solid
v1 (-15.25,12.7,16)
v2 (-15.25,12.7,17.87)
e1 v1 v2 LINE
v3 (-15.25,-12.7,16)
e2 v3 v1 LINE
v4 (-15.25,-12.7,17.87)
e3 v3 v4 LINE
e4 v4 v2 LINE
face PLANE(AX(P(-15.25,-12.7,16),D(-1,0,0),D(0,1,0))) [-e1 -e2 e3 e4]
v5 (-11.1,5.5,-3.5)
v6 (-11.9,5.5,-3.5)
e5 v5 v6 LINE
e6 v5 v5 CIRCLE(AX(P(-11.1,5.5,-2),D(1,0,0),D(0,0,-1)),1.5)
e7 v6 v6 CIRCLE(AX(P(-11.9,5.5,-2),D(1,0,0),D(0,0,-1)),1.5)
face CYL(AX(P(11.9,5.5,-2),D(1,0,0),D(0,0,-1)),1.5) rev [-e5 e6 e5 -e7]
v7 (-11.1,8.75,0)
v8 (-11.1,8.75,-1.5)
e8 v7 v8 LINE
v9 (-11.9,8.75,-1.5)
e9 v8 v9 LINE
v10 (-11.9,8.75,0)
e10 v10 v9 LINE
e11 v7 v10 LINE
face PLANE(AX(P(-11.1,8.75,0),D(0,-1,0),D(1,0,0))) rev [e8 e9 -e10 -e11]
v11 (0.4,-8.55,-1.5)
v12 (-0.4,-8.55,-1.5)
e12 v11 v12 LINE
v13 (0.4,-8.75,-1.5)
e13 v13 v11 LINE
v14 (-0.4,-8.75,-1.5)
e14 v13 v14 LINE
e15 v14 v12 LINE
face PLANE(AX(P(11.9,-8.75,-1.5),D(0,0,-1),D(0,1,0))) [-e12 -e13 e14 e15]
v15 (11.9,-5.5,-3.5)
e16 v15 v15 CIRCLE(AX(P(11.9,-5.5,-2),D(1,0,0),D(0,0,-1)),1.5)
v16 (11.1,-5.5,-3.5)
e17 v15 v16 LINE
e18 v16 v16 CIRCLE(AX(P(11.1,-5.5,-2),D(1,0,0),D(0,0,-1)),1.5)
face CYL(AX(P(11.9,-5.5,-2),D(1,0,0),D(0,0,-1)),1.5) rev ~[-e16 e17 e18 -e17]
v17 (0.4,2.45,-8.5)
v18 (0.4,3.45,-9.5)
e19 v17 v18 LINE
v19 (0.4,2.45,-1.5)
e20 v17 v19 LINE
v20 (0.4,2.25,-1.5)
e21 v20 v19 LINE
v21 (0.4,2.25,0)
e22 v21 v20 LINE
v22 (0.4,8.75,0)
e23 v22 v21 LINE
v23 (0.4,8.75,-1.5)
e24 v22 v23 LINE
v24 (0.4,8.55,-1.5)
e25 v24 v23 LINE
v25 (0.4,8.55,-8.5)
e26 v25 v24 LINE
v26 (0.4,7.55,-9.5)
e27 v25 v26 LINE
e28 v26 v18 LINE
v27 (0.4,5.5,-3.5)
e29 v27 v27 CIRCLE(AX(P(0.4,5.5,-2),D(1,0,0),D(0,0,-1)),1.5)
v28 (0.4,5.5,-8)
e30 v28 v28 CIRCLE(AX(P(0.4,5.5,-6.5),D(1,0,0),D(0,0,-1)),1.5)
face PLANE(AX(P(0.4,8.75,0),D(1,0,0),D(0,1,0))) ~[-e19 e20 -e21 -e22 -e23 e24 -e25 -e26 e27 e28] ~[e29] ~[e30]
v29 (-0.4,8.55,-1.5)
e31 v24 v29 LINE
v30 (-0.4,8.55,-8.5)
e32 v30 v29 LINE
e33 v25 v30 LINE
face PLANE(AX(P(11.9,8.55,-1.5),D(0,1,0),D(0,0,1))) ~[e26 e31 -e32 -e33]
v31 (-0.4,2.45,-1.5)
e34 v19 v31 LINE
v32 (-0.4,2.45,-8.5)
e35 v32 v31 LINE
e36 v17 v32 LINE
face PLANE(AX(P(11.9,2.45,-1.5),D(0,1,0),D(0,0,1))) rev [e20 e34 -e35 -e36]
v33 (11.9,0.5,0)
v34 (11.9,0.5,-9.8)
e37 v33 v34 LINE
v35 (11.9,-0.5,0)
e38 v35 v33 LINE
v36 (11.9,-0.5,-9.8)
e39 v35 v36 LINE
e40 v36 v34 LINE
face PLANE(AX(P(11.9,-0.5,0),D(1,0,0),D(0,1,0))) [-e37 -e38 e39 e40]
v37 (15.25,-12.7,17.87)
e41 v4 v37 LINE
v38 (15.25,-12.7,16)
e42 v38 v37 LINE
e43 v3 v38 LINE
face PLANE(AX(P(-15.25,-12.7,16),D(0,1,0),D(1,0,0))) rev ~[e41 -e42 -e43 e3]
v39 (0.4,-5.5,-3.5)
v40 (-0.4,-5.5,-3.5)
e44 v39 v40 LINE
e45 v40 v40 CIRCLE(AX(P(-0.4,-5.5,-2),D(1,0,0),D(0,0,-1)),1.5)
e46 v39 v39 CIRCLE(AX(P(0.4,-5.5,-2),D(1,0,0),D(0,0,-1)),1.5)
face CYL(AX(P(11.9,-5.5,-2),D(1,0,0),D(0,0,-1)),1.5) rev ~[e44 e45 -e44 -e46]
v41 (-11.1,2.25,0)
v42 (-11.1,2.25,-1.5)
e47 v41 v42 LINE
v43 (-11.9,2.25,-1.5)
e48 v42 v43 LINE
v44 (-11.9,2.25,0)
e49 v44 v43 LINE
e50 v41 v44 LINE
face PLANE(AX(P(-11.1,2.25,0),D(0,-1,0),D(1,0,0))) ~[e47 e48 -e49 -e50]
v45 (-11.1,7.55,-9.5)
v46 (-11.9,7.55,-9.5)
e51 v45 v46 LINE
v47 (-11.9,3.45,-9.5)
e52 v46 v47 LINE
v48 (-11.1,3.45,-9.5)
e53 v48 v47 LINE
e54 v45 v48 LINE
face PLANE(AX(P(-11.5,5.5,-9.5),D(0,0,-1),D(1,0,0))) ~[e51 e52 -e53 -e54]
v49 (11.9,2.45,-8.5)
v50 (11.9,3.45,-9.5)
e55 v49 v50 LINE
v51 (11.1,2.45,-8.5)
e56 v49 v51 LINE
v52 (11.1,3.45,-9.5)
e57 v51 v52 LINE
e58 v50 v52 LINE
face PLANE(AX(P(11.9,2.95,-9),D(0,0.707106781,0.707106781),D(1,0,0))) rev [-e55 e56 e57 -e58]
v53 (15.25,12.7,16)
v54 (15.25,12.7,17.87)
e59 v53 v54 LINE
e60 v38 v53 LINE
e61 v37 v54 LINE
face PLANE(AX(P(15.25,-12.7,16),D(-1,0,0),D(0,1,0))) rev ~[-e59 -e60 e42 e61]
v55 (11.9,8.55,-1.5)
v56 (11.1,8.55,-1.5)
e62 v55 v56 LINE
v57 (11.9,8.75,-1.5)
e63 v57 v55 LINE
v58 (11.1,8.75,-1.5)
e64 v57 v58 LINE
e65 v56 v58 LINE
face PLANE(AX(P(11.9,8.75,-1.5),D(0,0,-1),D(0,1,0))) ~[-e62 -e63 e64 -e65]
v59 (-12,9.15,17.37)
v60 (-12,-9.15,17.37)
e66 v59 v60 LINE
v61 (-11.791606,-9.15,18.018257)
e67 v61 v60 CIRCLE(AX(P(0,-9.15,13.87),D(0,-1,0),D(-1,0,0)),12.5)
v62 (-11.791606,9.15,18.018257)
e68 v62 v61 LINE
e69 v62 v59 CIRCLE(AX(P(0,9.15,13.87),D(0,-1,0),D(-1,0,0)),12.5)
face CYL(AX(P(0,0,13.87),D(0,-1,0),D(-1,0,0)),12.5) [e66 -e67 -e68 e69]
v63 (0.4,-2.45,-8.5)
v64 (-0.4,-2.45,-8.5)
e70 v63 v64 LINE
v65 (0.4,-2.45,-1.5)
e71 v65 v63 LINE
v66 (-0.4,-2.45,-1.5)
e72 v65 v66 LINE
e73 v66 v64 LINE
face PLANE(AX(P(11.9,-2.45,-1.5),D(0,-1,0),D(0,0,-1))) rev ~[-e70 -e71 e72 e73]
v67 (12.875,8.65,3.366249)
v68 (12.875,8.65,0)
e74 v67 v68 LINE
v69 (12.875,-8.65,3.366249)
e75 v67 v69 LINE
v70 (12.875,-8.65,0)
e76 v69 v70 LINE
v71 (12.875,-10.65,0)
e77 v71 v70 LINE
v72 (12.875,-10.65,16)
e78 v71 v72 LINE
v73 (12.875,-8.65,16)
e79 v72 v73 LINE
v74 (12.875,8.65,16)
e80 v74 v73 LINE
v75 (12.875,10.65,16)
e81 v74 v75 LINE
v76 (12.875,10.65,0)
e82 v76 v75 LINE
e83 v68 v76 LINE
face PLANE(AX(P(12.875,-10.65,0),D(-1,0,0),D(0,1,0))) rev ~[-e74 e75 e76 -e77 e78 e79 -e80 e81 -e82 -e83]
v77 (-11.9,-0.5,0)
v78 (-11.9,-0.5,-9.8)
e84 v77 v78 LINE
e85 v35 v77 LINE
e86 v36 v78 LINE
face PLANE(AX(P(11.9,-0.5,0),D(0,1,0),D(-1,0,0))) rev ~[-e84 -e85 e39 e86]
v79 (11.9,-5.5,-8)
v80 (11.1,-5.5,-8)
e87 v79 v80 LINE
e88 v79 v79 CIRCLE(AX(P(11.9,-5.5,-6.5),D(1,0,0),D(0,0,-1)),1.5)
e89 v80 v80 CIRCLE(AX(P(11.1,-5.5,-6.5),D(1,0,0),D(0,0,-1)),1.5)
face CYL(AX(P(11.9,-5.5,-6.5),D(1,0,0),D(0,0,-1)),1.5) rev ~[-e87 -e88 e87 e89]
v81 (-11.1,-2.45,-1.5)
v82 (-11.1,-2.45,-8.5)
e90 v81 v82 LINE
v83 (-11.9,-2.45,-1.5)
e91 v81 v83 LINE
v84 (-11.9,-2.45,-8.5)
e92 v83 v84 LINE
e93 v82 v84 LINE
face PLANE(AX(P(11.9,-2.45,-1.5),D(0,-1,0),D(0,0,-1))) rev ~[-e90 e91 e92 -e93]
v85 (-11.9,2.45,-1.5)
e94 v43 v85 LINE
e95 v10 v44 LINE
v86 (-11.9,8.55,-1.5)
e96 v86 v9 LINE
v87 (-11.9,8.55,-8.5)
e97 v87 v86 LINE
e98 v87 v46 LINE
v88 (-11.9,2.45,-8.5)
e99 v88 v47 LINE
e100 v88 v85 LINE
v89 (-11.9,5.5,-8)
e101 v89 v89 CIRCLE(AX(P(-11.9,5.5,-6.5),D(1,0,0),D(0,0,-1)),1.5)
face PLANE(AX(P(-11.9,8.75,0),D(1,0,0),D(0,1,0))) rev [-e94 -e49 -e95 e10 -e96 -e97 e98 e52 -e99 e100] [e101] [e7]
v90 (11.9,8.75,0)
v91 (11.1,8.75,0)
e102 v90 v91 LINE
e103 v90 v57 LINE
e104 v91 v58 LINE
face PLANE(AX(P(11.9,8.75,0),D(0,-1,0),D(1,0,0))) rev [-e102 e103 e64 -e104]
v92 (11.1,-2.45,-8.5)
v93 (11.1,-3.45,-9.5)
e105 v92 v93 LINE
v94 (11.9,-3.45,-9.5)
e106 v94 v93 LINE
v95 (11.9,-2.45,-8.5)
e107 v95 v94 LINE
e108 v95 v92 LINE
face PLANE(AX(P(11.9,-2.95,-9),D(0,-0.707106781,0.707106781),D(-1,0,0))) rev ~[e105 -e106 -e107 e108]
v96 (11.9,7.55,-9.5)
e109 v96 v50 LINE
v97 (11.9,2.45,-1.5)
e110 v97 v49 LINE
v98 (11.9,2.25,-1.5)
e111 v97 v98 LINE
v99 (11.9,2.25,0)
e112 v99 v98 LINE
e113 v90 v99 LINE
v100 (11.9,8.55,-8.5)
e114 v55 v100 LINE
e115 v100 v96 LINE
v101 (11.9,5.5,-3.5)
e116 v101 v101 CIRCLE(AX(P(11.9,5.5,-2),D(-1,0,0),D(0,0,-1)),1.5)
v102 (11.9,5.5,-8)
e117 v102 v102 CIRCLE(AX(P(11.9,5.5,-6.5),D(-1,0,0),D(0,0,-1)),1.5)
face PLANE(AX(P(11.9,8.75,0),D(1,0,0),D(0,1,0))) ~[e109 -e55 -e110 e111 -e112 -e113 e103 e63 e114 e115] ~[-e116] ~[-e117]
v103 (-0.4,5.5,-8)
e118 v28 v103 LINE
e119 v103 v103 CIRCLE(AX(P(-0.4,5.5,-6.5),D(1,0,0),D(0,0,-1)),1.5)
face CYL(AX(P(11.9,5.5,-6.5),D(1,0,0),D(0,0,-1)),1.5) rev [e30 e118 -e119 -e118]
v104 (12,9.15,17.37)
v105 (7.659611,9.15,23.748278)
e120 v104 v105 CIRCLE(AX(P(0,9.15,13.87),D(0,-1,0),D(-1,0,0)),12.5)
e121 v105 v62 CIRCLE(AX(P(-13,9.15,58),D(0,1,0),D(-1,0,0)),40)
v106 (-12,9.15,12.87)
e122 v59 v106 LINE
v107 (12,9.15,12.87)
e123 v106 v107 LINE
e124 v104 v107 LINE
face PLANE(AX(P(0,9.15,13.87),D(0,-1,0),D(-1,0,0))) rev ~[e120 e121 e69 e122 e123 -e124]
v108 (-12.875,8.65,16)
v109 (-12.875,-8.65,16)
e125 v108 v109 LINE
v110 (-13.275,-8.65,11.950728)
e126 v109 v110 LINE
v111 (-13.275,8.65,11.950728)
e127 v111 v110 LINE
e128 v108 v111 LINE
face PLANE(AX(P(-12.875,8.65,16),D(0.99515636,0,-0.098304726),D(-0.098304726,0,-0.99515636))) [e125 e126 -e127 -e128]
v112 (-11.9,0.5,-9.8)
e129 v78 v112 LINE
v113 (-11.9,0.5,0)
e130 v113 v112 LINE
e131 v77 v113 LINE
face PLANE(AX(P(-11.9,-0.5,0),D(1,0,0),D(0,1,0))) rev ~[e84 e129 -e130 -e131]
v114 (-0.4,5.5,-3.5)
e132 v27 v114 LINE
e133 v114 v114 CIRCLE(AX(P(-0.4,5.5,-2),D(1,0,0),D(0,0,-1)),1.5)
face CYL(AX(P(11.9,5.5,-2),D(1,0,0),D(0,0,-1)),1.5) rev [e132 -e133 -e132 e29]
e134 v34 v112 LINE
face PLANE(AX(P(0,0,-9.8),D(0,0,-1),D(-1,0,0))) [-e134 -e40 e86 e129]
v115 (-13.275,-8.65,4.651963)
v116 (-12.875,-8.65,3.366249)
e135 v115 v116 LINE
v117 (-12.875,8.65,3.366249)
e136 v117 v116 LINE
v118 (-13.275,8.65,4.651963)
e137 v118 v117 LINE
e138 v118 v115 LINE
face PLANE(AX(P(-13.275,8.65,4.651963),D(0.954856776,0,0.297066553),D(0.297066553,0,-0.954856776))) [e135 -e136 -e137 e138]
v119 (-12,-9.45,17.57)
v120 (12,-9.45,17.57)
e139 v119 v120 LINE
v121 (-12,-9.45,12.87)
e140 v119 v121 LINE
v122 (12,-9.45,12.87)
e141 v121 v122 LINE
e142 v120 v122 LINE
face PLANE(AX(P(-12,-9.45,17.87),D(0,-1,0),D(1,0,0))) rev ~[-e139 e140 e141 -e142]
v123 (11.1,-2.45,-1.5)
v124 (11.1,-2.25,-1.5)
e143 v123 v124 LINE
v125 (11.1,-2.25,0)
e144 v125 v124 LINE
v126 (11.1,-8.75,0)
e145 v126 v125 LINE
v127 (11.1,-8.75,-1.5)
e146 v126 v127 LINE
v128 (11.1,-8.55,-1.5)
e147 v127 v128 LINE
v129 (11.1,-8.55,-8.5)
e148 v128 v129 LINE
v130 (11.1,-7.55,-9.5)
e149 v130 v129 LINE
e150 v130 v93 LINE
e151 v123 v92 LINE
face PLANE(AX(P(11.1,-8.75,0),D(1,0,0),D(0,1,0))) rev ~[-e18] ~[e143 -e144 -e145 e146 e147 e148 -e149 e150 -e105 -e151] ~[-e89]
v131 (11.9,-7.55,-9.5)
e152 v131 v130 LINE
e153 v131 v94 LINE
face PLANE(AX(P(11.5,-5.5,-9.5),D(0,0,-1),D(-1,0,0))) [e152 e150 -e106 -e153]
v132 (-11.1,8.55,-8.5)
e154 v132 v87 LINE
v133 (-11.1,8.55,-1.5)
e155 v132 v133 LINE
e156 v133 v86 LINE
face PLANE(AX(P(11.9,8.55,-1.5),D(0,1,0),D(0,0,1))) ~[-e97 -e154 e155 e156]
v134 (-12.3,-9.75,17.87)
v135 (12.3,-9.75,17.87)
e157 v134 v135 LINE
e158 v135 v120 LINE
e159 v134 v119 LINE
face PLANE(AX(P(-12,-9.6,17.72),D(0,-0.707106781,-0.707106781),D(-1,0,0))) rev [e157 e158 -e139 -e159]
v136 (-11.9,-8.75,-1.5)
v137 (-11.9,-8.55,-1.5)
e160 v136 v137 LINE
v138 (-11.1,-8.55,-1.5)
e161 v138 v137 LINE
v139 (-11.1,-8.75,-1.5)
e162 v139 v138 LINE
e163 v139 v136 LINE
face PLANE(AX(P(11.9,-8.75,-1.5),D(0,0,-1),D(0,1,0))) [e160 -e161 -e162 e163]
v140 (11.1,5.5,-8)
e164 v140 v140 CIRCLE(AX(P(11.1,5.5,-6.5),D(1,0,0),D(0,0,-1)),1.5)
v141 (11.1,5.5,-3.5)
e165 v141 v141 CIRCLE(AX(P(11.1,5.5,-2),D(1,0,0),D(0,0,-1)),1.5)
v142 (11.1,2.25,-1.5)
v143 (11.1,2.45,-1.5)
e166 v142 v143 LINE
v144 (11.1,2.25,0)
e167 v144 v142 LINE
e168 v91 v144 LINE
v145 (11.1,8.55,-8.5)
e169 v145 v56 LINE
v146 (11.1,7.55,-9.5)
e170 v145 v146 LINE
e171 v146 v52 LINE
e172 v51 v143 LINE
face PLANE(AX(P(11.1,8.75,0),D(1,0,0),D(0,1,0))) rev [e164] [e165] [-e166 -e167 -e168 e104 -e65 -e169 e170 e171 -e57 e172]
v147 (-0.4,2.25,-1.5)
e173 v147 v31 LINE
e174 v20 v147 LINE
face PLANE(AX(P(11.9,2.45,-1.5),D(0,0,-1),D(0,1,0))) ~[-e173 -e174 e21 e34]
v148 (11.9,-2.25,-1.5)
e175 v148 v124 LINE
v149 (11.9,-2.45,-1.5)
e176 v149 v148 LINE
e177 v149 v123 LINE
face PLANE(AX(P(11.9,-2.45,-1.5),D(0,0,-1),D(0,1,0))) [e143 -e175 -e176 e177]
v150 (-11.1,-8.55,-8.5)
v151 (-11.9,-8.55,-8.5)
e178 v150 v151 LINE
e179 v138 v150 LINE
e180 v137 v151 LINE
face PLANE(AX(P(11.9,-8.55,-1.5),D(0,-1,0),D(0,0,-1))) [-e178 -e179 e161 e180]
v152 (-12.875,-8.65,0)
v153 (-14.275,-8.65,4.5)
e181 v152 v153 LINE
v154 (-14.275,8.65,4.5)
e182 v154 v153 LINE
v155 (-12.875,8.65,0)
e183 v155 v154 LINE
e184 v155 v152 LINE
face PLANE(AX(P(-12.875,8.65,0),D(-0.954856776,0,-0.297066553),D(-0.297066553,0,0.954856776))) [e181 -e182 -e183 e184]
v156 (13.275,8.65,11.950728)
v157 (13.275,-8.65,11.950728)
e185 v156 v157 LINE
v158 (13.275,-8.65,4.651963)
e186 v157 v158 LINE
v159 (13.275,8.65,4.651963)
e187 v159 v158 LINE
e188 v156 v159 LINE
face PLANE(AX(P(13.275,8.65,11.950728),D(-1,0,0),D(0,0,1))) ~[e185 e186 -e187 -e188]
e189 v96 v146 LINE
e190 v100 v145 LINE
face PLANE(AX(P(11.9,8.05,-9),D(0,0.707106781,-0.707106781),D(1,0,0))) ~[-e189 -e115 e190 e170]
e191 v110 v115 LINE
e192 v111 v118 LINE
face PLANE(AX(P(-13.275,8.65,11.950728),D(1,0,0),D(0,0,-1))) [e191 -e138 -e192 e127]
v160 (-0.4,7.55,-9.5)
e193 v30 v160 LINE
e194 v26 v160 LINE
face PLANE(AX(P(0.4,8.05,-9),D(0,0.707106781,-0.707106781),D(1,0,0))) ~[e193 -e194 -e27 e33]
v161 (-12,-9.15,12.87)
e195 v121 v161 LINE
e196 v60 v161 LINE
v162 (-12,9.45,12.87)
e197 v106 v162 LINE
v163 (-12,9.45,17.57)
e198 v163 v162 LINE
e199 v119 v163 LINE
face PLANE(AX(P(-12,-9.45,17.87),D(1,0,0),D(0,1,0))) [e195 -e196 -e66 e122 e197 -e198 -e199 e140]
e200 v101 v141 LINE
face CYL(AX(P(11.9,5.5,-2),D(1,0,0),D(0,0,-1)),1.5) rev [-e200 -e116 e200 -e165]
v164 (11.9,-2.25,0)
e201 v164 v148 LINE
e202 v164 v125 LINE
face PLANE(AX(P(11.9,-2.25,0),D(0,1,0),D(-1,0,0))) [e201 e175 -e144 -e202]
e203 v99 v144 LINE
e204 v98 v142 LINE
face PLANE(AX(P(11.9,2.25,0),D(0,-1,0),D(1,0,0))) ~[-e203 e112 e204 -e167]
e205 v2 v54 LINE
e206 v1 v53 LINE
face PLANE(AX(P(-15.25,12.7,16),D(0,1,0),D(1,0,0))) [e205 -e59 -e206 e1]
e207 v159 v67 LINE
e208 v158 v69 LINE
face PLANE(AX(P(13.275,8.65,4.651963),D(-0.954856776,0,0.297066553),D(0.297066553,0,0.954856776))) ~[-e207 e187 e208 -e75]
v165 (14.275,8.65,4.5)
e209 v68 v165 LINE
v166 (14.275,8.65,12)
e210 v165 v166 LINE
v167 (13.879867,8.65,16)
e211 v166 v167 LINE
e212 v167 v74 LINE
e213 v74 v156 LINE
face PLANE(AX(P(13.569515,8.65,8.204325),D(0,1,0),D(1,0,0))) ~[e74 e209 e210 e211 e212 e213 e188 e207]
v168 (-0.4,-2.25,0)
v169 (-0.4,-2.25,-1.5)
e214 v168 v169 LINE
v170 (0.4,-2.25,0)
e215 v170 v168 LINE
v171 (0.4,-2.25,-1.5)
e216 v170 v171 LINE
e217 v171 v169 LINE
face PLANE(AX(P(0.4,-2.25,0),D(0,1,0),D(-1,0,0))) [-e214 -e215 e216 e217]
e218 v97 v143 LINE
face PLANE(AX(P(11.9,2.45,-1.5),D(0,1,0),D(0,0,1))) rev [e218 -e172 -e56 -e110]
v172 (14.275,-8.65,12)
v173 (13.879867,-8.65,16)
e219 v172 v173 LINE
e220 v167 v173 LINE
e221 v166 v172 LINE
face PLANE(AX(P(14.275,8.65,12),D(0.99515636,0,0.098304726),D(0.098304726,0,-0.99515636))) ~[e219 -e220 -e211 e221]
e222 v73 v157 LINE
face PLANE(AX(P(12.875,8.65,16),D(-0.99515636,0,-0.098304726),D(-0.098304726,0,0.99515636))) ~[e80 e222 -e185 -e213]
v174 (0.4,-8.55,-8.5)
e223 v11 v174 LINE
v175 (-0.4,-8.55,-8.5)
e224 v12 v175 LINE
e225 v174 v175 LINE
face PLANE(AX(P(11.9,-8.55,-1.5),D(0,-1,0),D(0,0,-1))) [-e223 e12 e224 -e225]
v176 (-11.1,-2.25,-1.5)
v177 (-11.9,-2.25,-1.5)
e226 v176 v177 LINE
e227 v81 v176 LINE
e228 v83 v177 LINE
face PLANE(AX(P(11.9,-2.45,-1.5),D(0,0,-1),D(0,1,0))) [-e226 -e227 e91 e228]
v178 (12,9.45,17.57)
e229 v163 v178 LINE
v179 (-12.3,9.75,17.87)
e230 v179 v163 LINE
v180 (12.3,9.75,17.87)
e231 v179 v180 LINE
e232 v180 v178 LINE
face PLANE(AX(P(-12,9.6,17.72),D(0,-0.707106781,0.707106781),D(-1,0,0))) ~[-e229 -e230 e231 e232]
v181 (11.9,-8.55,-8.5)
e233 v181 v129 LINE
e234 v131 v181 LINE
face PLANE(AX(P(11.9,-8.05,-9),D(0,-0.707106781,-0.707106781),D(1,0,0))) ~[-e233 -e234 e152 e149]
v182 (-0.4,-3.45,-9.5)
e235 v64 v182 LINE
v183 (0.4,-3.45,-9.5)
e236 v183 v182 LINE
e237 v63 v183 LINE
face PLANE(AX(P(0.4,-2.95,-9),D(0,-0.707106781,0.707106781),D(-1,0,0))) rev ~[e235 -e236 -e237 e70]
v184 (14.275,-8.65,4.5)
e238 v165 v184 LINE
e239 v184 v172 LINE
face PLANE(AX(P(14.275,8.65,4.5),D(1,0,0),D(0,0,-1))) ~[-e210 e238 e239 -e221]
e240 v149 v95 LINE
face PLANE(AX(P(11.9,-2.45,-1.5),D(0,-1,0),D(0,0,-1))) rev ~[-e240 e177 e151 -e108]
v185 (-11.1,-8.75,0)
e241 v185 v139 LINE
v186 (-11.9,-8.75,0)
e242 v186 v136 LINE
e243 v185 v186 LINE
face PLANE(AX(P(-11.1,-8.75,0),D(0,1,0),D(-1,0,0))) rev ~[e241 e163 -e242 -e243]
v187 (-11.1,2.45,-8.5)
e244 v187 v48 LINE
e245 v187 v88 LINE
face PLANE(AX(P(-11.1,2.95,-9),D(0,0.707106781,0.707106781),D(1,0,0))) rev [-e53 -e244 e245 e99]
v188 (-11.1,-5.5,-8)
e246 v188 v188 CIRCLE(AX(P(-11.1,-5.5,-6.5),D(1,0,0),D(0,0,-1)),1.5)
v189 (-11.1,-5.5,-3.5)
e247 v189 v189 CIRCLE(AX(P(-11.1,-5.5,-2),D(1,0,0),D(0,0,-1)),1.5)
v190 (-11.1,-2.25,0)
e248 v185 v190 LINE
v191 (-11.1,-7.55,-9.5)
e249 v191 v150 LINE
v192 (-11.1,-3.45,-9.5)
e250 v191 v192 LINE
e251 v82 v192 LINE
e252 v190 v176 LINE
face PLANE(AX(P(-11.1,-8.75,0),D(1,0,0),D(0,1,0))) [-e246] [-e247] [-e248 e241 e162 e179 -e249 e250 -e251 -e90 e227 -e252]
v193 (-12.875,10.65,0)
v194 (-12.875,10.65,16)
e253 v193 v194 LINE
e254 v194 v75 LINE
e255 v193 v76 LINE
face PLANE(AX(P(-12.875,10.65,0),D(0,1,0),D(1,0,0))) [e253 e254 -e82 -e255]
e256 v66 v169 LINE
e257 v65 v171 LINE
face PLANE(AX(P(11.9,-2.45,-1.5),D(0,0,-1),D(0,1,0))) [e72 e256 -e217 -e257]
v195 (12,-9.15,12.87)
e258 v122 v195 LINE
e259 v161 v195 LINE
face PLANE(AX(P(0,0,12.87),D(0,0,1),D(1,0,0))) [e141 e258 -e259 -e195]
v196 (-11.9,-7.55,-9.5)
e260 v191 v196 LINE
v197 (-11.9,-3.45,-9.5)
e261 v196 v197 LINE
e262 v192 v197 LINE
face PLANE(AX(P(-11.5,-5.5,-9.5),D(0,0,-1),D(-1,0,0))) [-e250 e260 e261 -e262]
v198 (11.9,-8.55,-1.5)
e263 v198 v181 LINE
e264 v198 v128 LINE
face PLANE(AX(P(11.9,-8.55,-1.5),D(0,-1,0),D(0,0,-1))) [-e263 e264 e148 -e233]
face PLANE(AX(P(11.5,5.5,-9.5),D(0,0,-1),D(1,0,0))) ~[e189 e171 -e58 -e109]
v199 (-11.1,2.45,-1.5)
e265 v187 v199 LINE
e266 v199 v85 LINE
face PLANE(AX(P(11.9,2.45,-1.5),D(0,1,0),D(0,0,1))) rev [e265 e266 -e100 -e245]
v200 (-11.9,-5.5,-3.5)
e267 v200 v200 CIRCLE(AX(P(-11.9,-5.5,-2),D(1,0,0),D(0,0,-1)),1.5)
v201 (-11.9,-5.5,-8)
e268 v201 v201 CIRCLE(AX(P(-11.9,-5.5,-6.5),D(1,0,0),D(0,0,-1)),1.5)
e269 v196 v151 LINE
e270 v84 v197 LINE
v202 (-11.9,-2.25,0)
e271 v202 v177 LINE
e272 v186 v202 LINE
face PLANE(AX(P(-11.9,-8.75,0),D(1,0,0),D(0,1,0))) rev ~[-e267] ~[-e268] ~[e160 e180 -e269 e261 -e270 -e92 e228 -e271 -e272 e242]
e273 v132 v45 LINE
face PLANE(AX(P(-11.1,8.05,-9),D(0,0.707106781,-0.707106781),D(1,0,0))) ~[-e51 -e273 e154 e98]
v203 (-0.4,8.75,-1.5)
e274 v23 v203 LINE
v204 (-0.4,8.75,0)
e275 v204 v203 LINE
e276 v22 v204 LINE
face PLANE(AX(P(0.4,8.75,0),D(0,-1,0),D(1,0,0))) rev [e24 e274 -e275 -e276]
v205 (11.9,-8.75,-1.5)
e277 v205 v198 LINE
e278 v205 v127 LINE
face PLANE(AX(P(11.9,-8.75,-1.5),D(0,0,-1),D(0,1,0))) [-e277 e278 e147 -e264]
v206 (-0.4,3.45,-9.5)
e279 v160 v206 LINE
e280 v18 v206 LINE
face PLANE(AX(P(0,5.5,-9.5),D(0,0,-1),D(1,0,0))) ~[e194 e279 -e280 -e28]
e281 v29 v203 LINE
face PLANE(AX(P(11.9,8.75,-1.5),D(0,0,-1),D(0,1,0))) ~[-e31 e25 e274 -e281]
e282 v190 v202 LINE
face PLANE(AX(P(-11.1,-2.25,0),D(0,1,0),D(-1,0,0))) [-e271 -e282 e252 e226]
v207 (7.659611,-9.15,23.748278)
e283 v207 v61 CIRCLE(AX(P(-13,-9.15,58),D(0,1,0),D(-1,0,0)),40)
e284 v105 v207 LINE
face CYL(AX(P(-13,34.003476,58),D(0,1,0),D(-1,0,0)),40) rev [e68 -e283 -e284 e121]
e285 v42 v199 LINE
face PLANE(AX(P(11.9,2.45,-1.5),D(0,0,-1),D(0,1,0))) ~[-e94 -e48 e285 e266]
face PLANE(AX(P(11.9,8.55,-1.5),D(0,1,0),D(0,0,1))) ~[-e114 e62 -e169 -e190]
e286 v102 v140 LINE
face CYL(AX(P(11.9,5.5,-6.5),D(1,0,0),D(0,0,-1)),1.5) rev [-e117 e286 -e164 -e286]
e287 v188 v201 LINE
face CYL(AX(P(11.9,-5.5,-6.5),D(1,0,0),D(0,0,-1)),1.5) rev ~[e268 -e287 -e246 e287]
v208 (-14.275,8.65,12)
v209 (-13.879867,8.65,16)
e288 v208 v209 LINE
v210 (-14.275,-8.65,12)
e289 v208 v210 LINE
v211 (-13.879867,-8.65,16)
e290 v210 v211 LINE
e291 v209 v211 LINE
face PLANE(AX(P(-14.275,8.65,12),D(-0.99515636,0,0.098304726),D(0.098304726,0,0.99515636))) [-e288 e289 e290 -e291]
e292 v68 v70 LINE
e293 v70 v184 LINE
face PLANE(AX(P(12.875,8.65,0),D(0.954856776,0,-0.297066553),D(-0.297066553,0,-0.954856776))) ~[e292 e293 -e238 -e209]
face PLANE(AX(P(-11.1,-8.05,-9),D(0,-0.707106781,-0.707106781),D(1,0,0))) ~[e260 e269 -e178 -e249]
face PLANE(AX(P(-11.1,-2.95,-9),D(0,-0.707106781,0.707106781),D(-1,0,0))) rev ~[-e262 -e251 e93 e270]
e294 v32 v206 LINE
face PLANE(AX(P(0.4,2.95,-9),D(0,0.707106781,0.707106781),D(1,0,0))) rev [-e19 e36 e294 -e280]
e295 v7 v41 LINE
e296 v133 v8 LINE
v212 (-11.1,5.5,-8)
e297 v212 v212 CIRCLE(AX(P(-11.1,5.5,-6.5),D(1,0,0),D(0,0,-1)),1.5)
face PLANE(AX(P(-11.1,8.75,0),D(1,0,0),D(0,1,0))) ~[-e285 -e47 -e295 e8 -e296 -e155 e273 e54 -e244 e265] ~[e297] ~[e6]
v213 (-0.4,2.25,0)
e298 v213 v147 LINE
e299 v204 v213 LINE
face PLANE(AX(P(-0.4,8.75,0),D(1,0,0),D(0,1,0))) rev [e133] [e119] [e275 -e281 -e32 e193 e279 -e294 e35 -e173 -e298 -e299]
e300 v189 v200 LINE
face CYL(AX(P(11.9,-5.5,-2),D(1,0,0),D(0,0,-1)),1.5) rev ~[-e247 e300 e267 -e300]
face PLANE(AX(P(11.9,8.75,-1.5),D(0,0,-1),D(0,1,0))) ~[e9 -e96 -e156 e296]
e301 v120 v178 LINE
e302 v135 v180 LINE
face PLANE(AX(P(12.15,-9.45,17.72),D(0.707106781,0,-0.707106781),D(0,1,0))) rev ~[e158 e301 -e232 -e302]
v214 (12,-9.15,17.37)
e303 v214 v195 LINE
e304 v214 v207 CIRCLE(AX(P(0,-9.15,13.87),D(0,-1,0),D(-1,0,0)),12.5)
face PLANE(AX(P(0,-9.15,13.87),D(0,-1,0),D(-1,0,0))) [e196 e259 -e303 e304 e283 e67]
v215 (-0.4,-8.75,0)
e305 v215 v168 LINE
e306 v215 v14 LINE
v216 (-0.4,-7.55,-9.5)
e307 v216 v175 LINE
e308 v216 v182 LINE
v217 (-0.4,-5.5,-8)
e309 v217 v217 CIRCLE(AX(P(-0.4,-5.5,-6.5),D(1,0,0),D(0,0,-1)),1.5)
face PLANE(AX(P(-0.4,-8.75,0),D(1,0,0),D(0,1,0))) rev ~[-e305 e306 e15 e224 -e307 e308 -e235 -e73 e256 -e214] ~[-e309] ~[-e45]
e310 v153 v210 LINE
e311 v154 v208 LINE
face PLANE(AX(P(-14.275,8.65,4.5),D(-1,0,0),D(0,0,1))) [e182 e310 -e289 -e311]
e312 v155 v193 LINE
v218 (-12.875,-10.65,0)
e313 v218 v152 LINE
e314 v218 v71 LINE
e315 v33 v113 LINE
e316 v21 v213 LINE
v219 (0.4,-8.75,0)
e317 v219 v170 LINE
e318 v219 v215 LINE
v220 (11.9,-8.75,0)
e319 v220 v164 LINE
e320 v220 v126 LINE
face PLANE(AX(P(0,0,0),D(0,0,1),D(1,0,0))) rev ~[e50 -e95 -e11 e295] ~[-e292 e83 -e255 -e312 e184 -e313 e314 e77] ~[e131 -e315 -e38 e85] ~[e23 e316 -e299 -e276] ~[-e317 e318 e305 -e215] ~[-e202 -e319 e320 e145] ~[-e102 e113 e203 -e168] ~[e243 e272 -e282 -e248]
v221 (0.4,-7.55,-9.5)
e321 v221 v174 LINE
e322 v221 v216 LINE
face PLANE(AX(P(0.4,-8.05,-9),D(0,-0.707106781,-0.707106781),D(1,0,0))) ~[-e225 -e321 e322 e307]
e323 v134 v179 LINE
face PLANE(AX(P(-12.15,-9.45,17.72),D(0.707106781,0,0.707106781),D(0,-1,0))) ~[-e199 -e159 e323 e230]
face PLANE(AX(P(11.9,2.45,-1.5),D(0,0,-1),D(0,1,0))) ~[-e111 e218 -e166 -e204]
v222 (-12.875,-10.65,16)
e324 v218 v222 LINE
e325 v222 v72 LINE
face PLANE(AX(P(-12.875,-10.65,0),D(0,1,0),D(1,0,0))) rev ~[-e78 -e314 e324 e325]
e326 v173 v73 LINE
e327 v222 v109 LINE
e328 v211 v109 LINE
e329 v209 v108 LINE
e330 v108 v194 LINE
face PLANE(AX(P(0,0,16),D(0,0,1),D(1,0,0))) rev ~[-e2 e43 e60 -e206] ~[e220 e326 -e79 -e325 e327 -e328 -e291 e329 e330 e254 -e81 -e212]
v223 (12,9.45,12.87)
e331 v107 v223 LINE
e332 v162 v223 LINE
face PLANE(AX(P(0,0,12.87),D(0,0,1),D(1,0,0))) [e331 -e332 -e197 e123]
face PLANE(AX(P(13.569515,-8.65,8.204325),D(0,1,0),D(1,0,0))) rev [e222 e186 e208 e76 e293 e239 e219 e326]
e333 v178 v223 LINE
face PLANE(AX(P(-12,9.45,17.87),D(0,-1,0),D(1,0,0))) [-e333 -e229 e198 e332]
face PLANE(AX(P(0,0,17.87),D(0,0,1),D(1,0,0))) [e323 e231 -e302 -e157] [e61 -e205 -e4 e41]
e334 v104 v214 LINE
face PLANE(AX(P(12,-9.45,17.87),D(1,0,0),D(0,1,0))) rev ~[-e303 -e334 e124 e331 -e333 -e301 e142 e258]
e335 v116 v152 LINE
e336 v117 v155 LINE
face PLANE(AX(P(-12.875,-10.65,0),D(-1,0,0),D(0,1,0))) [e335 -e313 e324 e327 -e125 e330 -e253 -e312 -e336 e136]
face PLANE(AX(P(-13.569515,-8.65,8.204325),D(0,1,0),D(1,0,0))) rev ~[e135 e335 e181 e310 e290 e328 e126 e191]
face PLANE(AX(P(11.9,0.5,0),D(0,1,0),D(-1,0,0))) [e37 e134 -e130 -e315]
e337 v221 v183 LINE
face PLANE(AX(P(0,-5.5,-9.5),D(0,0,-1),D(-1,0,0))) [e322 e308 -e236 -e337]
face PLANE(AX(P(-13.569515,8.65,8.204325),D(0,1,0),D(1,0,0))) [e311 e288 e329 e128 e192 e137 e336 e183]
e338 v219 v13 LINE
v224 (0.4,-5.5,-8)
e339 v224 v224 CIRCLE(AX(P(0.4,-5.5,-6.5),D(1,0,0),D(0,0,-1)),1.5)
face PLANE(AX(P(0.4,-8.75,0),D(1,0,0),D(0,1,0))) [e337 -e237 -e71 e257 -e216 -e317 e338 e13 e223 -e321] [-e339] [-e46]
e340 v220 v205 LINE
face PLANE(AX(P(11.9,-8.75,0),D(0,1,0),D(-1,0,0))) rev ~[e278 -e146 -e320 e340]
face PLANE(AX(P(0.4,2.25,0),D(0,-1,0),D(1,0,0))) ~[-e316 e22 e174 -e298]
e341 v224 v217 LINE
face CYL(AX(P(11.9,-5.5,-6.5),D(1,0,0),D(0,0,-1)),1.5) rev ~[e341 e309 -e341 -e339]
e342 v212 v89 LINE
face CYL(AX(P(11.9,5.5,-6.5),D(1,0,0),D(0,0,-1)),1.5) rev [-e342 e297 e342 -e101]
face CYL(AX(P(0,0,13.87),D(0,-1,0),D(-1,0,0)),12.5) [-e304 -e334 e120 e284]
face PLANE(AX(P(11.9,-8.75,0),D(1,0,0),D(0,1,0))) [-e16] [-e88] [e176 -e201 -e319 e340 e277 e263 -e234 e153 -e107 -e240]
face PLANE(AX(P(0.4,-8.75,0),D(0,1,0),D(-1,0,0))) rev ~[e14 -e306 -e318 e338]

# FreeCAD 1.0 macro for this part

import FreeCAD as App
import Part
import Sketcher


def edges_at(feature, points):
    """Names of the edges that pass closest to the given points."""
    edges = feature.Shape.Edges
    near = lambda p: min(range(len(edges)), key=lambda i: edges[i].distToShape(Part.Vertex(*p))[0])
    return sorted({f"Edge{near(p) + 1}" for p in points})

doc = App.newDocument("Part")
params = doc.addObject("Spreadsheet::Sheet", "Params")
for row, (alias, value) in enumerate([
    ("sketch1_height", "21.3 mm"),
    ("sketch1_width", "25.75 mm"),
    ("pad1_length", "16 mm"),
    ("sketch2_width", "30.5 mm"),
    ("sketch2_height", "25.4 mm"),
    ("pad2_length", "1.87 mm"),
    ("sketch3_height", "1 mm"),
    ("sketch3_width", "23.8 mm"),
    ("pad3_length", "9.8 mm"),
    ("sketch4_width", "0.8 mm"),
    ("sketch4_height", "6.5 mm"),
    ("pad4_length", "9.5 mm"),
    ("sketch5_height", "8 mm"),
    ("sketch5_width", "0.2 mm"),
    ("chamfer_size", "1 mm"),
    ("sketch6_diameter", "3 mm"),
    ("chamfer2_size", "1 mm"),
    ("sketch7_height", "7.5 mm"),
    ("pad5_length", "17.3 mm"),
    ("sketch8_width", "24 mm"),
    ("sketch8_height", "18.9 mm"),
    ("pocket3_length", "5 mm"),
    ("sketch9_diameter", "25 mm"),
    ("pad6_length", "18.3 mm"),
    ("sketch10_diameter", "80 mm"),
    ("chamfer3_size", "0.3 mm"),
], start=1):
    params.set(f"A{row}", alias)
    params.set(f"B{row}", "=" + value)
    params.setAlias(f"B{row}", alias)

body = doc.addObject("PartDesign::Body", "Body")

# Sketch on XY plane
sketch1 = body.newObject("Sketcher::SketchObject", "Sketch")
sketch1.AttachmentSupport = (doc.getObject("XY_Plane"), [""])
sketch1.MapMode = "FlatFace"
sketch1.addGeometry(Part.LineSegment(App.Vector(-12.875, 10.65, 0), App.Vector(-12.875, -10.65, 0)), False)
sketch1.addGeometry(Part.LineSegment(App.Vector(-12.875, -10.65, 0), App.Vector(12.875, -10.65, 0)), False)
sketch1.addGeometry(Part.LineSegment(App.Vector(12.875, -10.65, 0), App.Vector(12.875, 10.65, 0)), False)
sketch1.addGeometry(Part.LineSegment(App.Vector(12.875, 10.65, 0), App.Vector(-12.875, 10.65, 0)), False)
sketch1.addConstraint(Sketcher.Constraint("Coincident", 0, 2, 1, 1))
sketch1.addConstraint(Sketcher.Constraint("Coincident", 1, 2, 2, 1))
sketch1.addConstraint(Sketcher.Constraint("Coincident", 2, 2, 3, 1))
sketch1.addConstraint(Sketcher.Constraint("Coincident", 3, 2, 0, 1))
sketch1.addConstraint(Sketcher.Constraint("Vertical", 0))
sketch1.addConstraint(Sketcher.Constraint("Horizontal", 1))
sketch1.addConstraint(Sketcher.Constraint("Vertical", 2))
sketch1.addConstraint(Sketcher.Constraint("Horizontal", 3))
sketch1.addConstraint(Sketcher.Constraint("Symmetric", 0, 2, 2, 2, -1, 1))
sketch1.addConstraint(Sketcher.Constraint("DistanceY", 0, 2, 0, 1, 21.3))
sketch1.addConstraint(Sketcher.Constraint("DistanceX", 1, 1, 1, 2, 25.75))
sketch1.setExpression("Constraints[9]", "Params.sketch1_height")
sketch1.setExpression("Constraints[10]", "Params.sketch1_width")
pad1 = body.newObject("PartDesign::Pad", "Pad")
pad1.Profile = sketch1
pad1.setExpression("Length", "Params.pad1_length")

# Sketch on XY plane
sketch2 = body.newObject("Sketcher::SketchObject", "Sketch001")
sketch2.AttachmentSupport = (doc.getObject("XY_Plane"), [""])
sketch2.MapMode = "FlatFace"
sketch2.AttachmentOffset = App.Placement(App.Vector(0, 0, 16), App.Rotation())
sketch2.addGeometry(Part.LineSegment(App.Vector(-15.25, 12.7, 0), App.Vector(-15.25, -12.7, 0)), False)
sketch2.addGeometry(Part.LineSegment(App.Vector(-15.25, -12.7, 0), App.Vector(15.25, -12.7, 0)), False)
sketch2.addGeometry(Part.LineSegment(App.Vector(15.25, -12.7, 0), App.Vector(15.25, 12.7, 0)), False)
sketch2.addGeometry(Part.LineSegment(App.Vector(15.25, 12.7, 0), App.Vector(-15.25, 12.7, 0)), False)
sketch2.addConstraint(Sketcher.Constraint("Coincident", 0, 2, 1, 1))
sketch2.addConstraint(Sketcher.Constraint("Coincident", 1, 2, 2, 1))
sketch2.addConstraint(Sketcher.Constraint("Coincident", 2, 2, 3, 1))
sketch2.addConstraint(Sketcher.Constraint("Coincident", 3, 2, 0, 1))
sketch2.addConstraint(Sketcher.Constraint("Vertical", 0))
sketch2.addConstraint(Sketcher.Constraint("Horizontal", 1))
sketch2.addConstraint(Sketcher.Constraint("Vertical", 2))
sketch2.addConstraint(Sketcher.Constraint("Horizontal", 3))
sketch2.addConstraint(Sketcher.Constraint("Symmetric", 0, 2, 2, 2, -1, 1))
sketch2.addConstraint(Sketcher.Constraint("DistanceX", 1, 1, 1, 2, 30.5))
sketch2.addConstraint(Sketcher.Constraint("DistanceY", 0, 2, 0, 1, 25.4))
sketch2.setExpression("Constraints[9]", "Params.sketch2_width")
sketch2.setExpression("Constraints[10]", "Params.sketch2_height")
pad2 = body.newObject("PartDesign::Pad", "Pad001")
pad2.Profile = sketch2
pad2.setExpression("Length", "Params.pad2_length")

# Sketch on XY plane
sketch3 = body.newObject("Sketcher::SketchObject", "Sketch002")
sketch3.AttachmentSupport = (doc.getObject("XY_Plane"), [""])
sketch3.MapMode = "FlatFace"
sketch3.addGeometry(Part.LineSegment(App.Vector(11.9, 0.5, 0), App.Vector(11.9, -0.5, 0)), False)
sketch3.addGeometry(Part.LineSegment(App.Vector(11.9, -0.5, 0), App.Vector(-11.9, -0.5, 0)), False)
sketch3.addGeometry(Part.LineSegment(App.Vector(-11.9, -0.5, 0), App.Vector(-11.9, 0.5, 0)), False)
sketch3.addGeometry(Part.LineSegment(App.Vector(-11.9, 0.5, 0), App.Vector(11.9, 0.5, 0)), False)
sketch3.addConstraint(Sketcher.Constraint("Coincident", 0, 2, 1, 1))
sketch3.addConstraint(Sketcher.Constraint("Coincident", 1, 2, 2, 1))
sketch3.addConstraint(Sketcher.Constraint("Coincident", 2, 2, 3, 1))
sketch3.addConstraint(Sketcher.Constraint("Coincident", 3, 2, 0, 1))
sketch3.addConstraint(Sketcher.Constraint("Vertical", 0))
sketch3.addConstraint(Sketcher.Constraint("Horizontal", 1))
sketch3.addConstraint(Sketcher.Constraint("Vertical", 2))
sketch3.addConstraint(Sketcher.Constraint("Horizontal", 3))
sketch3.addConstraint(Sketcher.Constraint("Symmetric", 0, 2, 2, 2, -1, 1))
sketch3.addConstraint(Sketcher.Constraint("DistanceY", 0, 2, 0, 1, 1.0))
sketch3.addConstraint(Sketcher.Constraint("DistanceX", 1, 2, 1, 1, 23.8))
sketch3.setExpression("Constraints[9]", "Params.sketch3_height")
sketch3.setExpression("Constraints[10]", "Params.sketch3_width")
pad3 = body.newObject("PartDesign::Pad", "Pad002")
pad3.Profile = sketch3
pad3.setExpression("Length", "Params.pad3_length")
pad3.Reversed = True

# Sketch on XY plane
sketch4 = body.newObject("Sketcher::SketchObject", "Sketch003")
sketch4.AttachmentSupport = (doc.getObject("XY_Plane"), [""])
sketch4.MapMode = "FlatFace"
sketch4.addGeometry(Part.LineSegment(App.Vector(-11.1, -2.25, 0), App.Vector(-11.1, -8.75, 0)), False)
sketch4.addGeometry(Part.LineSegment(App.Vector(-11.1, -8.75, 0), App.Vector(-11.9, -8.75, 0)), False)
sketch4.addGeometry(Part.LineSegment(App.Vector(-11.9, -8.75, 0), App.Vector(-11.9, -2.25, 0)), False)
sketch4.addGeometry(Part.LineSegment(App.Vector(-11.9, -2.25, 0), App.Vector(-11.1, -2.25, 0)), False)
sketch4.addGeometry(Part.LineSegment(App.Vector(0.4, -2.25, 0), App.Vector(0.4, -8.75, 0)), False)
sketch4.addGeometry(Part.LineSegment(App.Vector(0.4, -8.75, 0), App.Vector(-0.4, -8.75, 0)), False)
sketch4.addGeometry(Part.LineSegment(App.Vector(-0.4, -8.75, 0), App.Vector(-0.4, -2.25, 0)), False)
sketch4.addGeometry(Part.LineSegment(App.Vector(-0.4, -2.25, 0), App.Vector(0.4, -2.25, 0)), False)
sketch4.addGeometry(Part.LineSegment(App.Vector(11.9, -2.25, 0), App.Vector(11.9, -8.75, 0)), False)
sketch4.addGeometry(Part.LineSegment(App.Vector(11.9, -8.75, 0), App.Vector(11.1, -8.75, 0)), False)
sketch4.addGeometry(Part.LineSegment(App.Vector(11.1, -8.75, 0), App.Vector(11.1, -2.25, 0)), False)
sketch4.addGeometry(Part.LineSegment(App.Vector(11.1, -2.25, 0), App.Vector(11.9, -2.25, 0)), False)
sketch4.addConstraint(Sketcher.Constraint("Coincident", 0, 2, 1, 1))
sketch4.addConstraint(Sketcher.Constraint("Coincident", 1, 2, 2, 1))
sketch4.addConstraint(Sketcher.Constraint("Coincident", 2, 2, 3, 1))
sketch4.addConstraint(Sketcher.Constraint("Coincident", 3, 2, 0, 1))
sketch4.addConstraint(Sketcher.Constraint("Coincident", 4, 2, 5, 1))
sketch4.addConstraint(Sketcher.Constraint("Coincident", 5, 2, 6, 1))
sketch4.addConstraint(Sketcher.Constraint("Coincident", 6, 2, 7, 1))
sketch4.addConstraint(Sketcher.Constraint("Coincident", 7, 2, 4, 1))
sketch4.addConstraint(Sketcher.Constraint("Coincident", 8, 2, 9, 1))
sketch4.addConstraint(Sketcher.Constraint("Coincident", 9, 2, 10, 1))
sketch4.addConstraint(Sketcher.Constraint("Coincident", 10, 2, 11, 1))
sketch4.addConstraint(Sketcher.Constraint("Coincident", 11, 2, 8, 1))
sketch4.addConstraint(Sketcher.Constraint("Vertical", 0))
sketch4.addConstraint(Sketcher.Constraint("Horizontal", 1))
sketch4.addConstraint(Sketcher.Constraint("Vertical", 2))
sketch4.addConstraint(Sketcher.Constraint("Horizontal", 3))
sketch4.addConstraint(Sketcher.Constraint("Vertical", 4))
sketch4.addConstraint(Sketcher.Constraint("Horizontal", 5))
sketch4.addConstraint(Sketcher.Constraint("Vertical", 6))
sketch4.addConstraint(Sketcher.Constraint("Horizontal", 7))
sketch4.addConstraint(Sketcher.Constraint("Vertical", 8))
sketch4.addConstraint(Sketcher.Constraint("Horizontal", 9))
sketch4.addConstraint(Sketcher.Constraint("Vertical", 10))
sketch4.addConstraint(Sketcher.Constraint("Horizontal", 11))
sketch4.addConstraint(Sketcher.Constraint("Symmetric", 1, 2, 8, 2, -2))
sketch4.addConstraint(Sketcher.Constraint("Symmetric", 3, 2, 10, 2, -2))
sketch4.addConstraint(Sketcher.Constraint("Horizontal", 1, 2, 4, 2))
sketch4.addConstraint(Sketcher.Constraint("Horizontal", 3, 2, 6, 2))
sketch4.addConstraint(Sketcher.Constraint("Equal", 3, 5))
sketch4.addConstraint(Sketcher.Constraint("DistanceX", 1, 2, 1, 1, 0.8))
sketch4.addConstraint(Sketcher.Constraint("DistanceY", 0, 2, 0, 1, 6.5))
sketch4.addConstraint(Sketcher.Constraint("DistanceX", 0, 2, 8, 2, 23.0))
sketch4.addConstraint(Sketcher.Constraint("DistanceX", -1, 1, 4, 2, 0.4))
sketch4.addConstraint(Sketcher.Constraint("DistanceY", 0, 2, -1, 1, 8.75))
sketch4.setExpression("Constraints[29]", "Params.sketch4_width")
sketch4.setExpression("Constraints[30]", "Params.sketch4_height")
pad4 = body.newObject("PartDesign::Pad", "Pad003")
pad4.Profile = sketch4
pad4.setExpression("Length", "Params.pad4_length")
pad4.Reversed = True

# Sketch on YZ plane
sketch5 = body.newObject("Sketcher::SketchObject", "Sketch004")
sketch5.AttachmentSupport = (doc.getObject("YZ_Plane"), [""])
sketch5.MapMode = "FlatFace"
sketch5.AttachmentOffset = App.Placement(App.Vector(0, 0, 11.9), App.Rotation())
sketch5.addGeometry(Part.LineSegment(App.Vector(-2.25, -1.5, 0), App.Vector(-2.45, -1.5, 0)), False)
sketch5.addGeometry(Part.LineSegment(App.Vector(-2.45, -1.5, 0), App.Vector(-2.45, -9.5, 0)), False)
sketch5.addGeometry(Part.LineSegment(App.Vector(-2.45, -9.5, 0), App.Vector(-2.25, -9.5, 0)), False)
sketch5.addGeometry(Part.LineSegment(App.Vector(-2.25, -9.5, 0), App.Vector(-2.25, -1.5, 0)), False)
sketch5.addGeometry(Part.LineSegment(App.Vector(-8.55, -1.5, 0), App.Vector(-8.75, -1.5, 0)), False)
sketch5.addGeometry(Part.LineSegment(App.Vector(-8.75, -1.5, 0), App.Vector(-8.75, -9.5, 0)), False)
sketch5.addGeometry(Part.LineSegment(App.Vector(-8.75, -9.5, 0), App.Vector(-8.55, -9.5, 0)), False)
sketch5.addGeometry(Part.LineSegment(App.Vector(-8.55, -9.5, 0), App.Vector(-8.55, -1.5, 0)), False)
sketch5.addConstraint(Sketcher.Constraint("Coincident", 0, 2, 1, 1))
sketch5.addConstraint(Sketcher.Constraint("Coincident", 1, 2, 2, 1))
sketch5.addConstraint(Sketcher.Constraint("Coincident", 2, 2, 3, 1))
sketch5.addConstraint(Sketcher.Constraint("Coincident", 3, 2, 0, 1))
sketch5.addConstraint(Sketcher.Constraint("Coincident", 4, 2, 5, 1))
sketch5.addConstraint(Sketcher.Constraint("Coincident", 5, 2, 6, 1))
sketch5.addConstraint(Sketcher.Constraint("Coincident", 6, 2, 7, 1))
sketch5.addConstraint(Sketcher.Constraint("Coincident", 7, 2, 4, 1))
sketch5.addConstraint(Sketcher.Constraint("Horizontal", 0))
sketch5.addConstraint(Sketcher.Constraint("Vertical", 1))
sketch5.addConstraint(Sketcher.Constraint("Horizontal", 2))
sketch5.addConstraint(Sketcher.Constraint("Vertical", 3))
sketch5.addConstraint(Sketcher.Constraint("Horizontal", 4))
sketch5.addConstraint(Sketcher.Constraint("Vertical", 5))
sketch5.addConstraint(Sketcher.Constraint("Horizontal", 6))
sketch5.addConstraint(Sketcher.Constraint("Vertical", 7))
sketch5.addConstraint(Sketcher.Constraint("Horizontal", 3, 2, 4, 2))
sketch5.addConstraint(Sketcher.Constraint("Horizontal", 2, 2, 5, 2))
sketch5.addConstraint(Sketcher.Constraint("Equal", 2, 4))
sketch5.addConstraint(Sketcher.Constraint("DistanceY", 1, 2, 1, 1, 8.0))
sketch5.addConstraint(Sketcher.Constraint("DistanceX", 0, 2, 0, 1, 0.2))
sketch5.addConstraint(Sketcher.Constraint("DistanceY", 0, 2, -1, 1, 1.5))
sketch5.addConstraint(Sketcher.Constraint("DistanceX", 4, 2, 0, 2, 6.3))
sketch5.addConstraint(Sketcher.Constraint("DistanceX", 0, 2, -1, 1, 2.45))
sketch5.setExpression("Constraints[19]", "Params.sketch5_height")
sketch5.setExpression("Constraints[20]", "Params.sketch5_width")
pocket1 = body.newObject("PartDesign::Pocket", "Pocket")
pocket1.Profile = sketch5
pocket1.Type = "ThroughAll"
doc.recompute()

chamfer = body.newObject("PartDesign::Chamfer", "Chamfer")
chamfer.Base = (pocket1, edges_at(pocket1, [
    (-11.5, -2.45, -9.5),
    (0, -2.45, -9.5),
    (-11.5, -8.55, -9.5),
    (0, -8.55, -9.5),
    (11.5, -8.55, -9.5),
    (11.5, -2.45, -9.5),
]))
chamfer.setExpression("Size", "Params.chamfer_size")

# Sketch on YZ plane
sketch6 = body.newObject("Sketcher::SketchObject", "Sketch005")
sketch6.AttachmentSupport = (doc.getObject("YZ_Plane"), [""])
sketch6.MapMode = "FlatFace"
sketch6.AttachmentOffset = App.Placement(App.Vector(0, 0, 11.9), App.Rotation())
sketch6.addGeometry(Part.Circle(App.Vector(-5.5, -6.5, 0), App.Vector(0, 0, 1), 1.5), False)
sketch6.addGeometry(Part.Circle(App.Vector(-5.5, -2, 0), App.Vector(0, 0, 1), 1.5), False)
sketch6.addConstraint(Sketcher.Constraint("Equal", 0, 1))
sketch6.addConstraint(Sketcher.Constraint("Vertical", 0, 3, 1, 3))
sketch6.addConstraint(Sketcher.Constraint("Diameter", 0, 3.0))
sketch6.addConstraint(Sketcher.Constraint("DistanceY", 1, 3, -1, 1, 2.0))
sketch6.addConstraint(Sketcher.Constraint("DistanceX", 0, 3, -1, 1, 5.5))
sketch6.addConstraint(Sketcher.Constraint("DistanceY", 0, 3, -1, 1, 6.5))
sketch6.setExpression("Constraints[2]", "Params.sketch6_diameter")
pocket2 = body.newObject("PartDesign::Pocket", "Pocket001")
pocket2.Profile = sketch6
pocket2.Type = "ThroughAll"
doc.recompute()

mirrored = body.newObject("PartDesign::Mirrored", "Mirrored")
mirrored.Originals = [pad4, pocket1, pocket2]
mirrored.MirrorPlane = (doc.getObject("XZ_Plane"), [""])
body.Tip = mirrored
doc.recompute()

chamfer2 = body.newObject("PartDesign::Chamfer", "Chamfer001")
chamfer2.Base = (mirrored, edges_at(mirrored, [
    (-11.5, 2.45, -9.5),
    (0, 2.45, -9.5),
    (-11.5, 8.55, -9.5),
    (0, 8.55, -9.5),
    (11.5, 8.55, -9.5),
    (11.5, 2.45, -9.5),
]))
chamfer2.setExpression("Size", "Params.chamfer2_size")

# Sketch on XZ plane
sketch7 = body.newObject("Sketcher::SketchObject", "Sketch006")
sketch7.AttachmentSupport = (doc.getObject("XZ_Plane"), [""])
sketch7.MapMode = "FlatFace"
sketch7.AttachmentOffset = App.Placement(App.Vector(0, 0, -8.65), App.Rotation())
sketch7.addGeometry(Part.LineSegment(App.Vector(-12.875, 0, 0), App.Vector(-14.275, 4.5, 0)), False)
sketch7.addGeometry(Part.LineSegment(App.Vector(-14.275, 4.5, 0), App.Vector(-14.275, 12, 0)), False)
sketch7.addGeometry(Part.LineSegment(App.Vector(-14.275, 12, 0), App.Vector(-13.879867, 16, 0)), False)
sketch7.addGeometry(Part.LineSegment(App.Vector(-13.879867, 16, 0), App.Vector(-12.875, 16, 0)), False)
sketch7.addGeometry(Part.LineSegment(App.Vector(-12.875, 16, 0), App.Vector(-13.275, 11.950728, 0)), False)
sketch7.addGeometry(Part.LineSegment(App.Vector(-13.275, 11.950728, 0), App.Vector(-13.275, 4.651963, 0)), False)
sketch7.addGeometry(Part.LineSegment(App.Vector(-13.275, 4.651963, 0), App.Vector(-12.875, 3.366249, 0)), False)
sketch7.addGeometry(Part.LineSegment(App.Vector(-12.875, 3.366249, 0), App.Vector(-12.875, 0, 0)), False)
sketch7.addConstraint(Sketcher.Constraint("Coincident", 0, 2, 1, 1))
sketch7.addConstraint(Sketcher.Constraint("Coincident", 1, 2, 2, 1))
sketch7.addConstraint(Sketcher.Constraint("Coincident", 2, 2, 3, 1))
sketch7.addConstraint(Sketcher.Constraint("Coincident", 3, 2, 4, 1))
sketch7.addConstraint(Sketcher.Constraint("Coincident", 4, 2, 5, 1))
sketch7.addConstraint(Sketcher.Constraint("Coincident", 5, 2, 6, 1))
sketch7.addConstraint(Sketcher.Constraint("Coincident", 6, 2, 7, 1))
sketch7.addConstraint(Sketcher.Constraint("Coincident", 7, 2, 0, 1))
sketch7.addConstraint(Sketcher.Constraint("Vertical", 1))
sketch7.addConstraint(Sketcher.Constraint("Horizontal", 3))
sketch7.addConstraint(Sketcher.Constraint("Vertical", 5))
sketch7.addConstraint(Sketcher.Constraint("Vertical", 7))
sketch7.addConstraint(Sketcher.Constraint("PointOnObject", 7, 2, -1))
sketch7.addConstraint(Sketcher.Constraint("Parallel", 2, 4))
sketch7.addConstraint(Sketcher.Constraint("Parallel", 0, 6))
sketch7.addConstraint(Sketcher.Constraint("Vertical", 3, 2, 6, 2))
sketch7.addConstraint(Sketcher.Constraint("DistanceY", 1, 1, 1, 2, 7.5))
sketch7.addConstraint(Sketcher.Constraint("DistanceY", -1, 1, 1, 2, 12.0))
sketch7.addConstraint(Sketcher.Constraint("DistanceY", -1, 1, 2, 2, 16.0))
sketch7.addConstraint(Sketcher.Constraint("DistanceX", 1, 2, 4, 2, 1.0))
sketch7.addConstraint(Sketcher.Constraint("DistanceX", 1, 2, 3, 2, 1.4))
sketch7.addConstraint(Sketcher.Constraint("DistanceX", 0, 2, -1, 1, 14.275))
sketch7.addConstraint(Sketcher.Constraint("DistanceY", 7, 2, 7, 1, 3.366249))
sketch7.addConstraint(Sketcher.Constraint("Distance", 2, 4.019469))
sketch7.setExpression("Constraints[16]", "Params.sketch7_height")
pad5 = body.newObject("PartDesign::Pad", "Pad004")
pad5.Profile = sketch7
pad5.setExpression("Length", "Params.pad5_length")
doc.recompute()

mirrored2 = body.newObject("PartDesign::Mirrored", "Mirrored001")
mirrored2.Originals = [pad5]
mirrored2.MirrorPlane = (doc.getObject("YZ_Plane"), [""])
body.Tip = mirrored2

# Sketch on XY plane
sketch8 = body.newObject("Sketcher::SketchObject", "Sketch007")
sketch8.AttachmentSupport = (doc.getObject("XY_Plane"), [""])
sketch8.MapMode = "FlatFace"
sketch8.AttachmentOffset = App.Placement(App.Vector(0, 0, 17.87), App.Rotation())
sketch8.addGeometry(Part.LineSegment(App.Vector(-12, 9.45, 0), App.Vector(-12, -9.45, 0)), False)
sketch8.addGeometry(Part.LineSegment(App.Vector(-12, -9.45, 0), App.Vector(12, -9.45, 0)), False)
sketch8.addGeometry(Part.LineSegment(App.Vector(12, -9.45, 0), App.Vector(12, 9.45, 0)), False)
sketch8.addGeometry(Part.LineSegment(App.Vector(12, 9.45, 0), App.Vector(-12, 9.45, 0)), False)
sketch8.addConstraint(Sketcher.Constraint("Coincident", 0, 2, 1, 1))
sketch8.addConstraint(Sketcher.Constraint("Coincident", 1, 2, 2, 1))
sketch8.addConstraint(Sketcher.Constraint("Coincident", 2, 2, 3, 1))
sketch8.addConstraint(Sketcher.Constraint("Coincident", 3, 2, 0, 1))
sketch8.addConstraint(Sketcher.Constraint("Vertical", 0))
sketch8.addConstraint(Sketcher.Constraint("Horizontal", 1))
sketch8.addConstraint(Sketcher.Constraint("Vertical", 2))
sketch8.addConstraint(Sketcher.Constraint("Horizontal", 3))
sketch8.addConstraint(Sketcher.Constraint("Symmetric", 0, 2, 2, 2, -1, 1))
sketch8.addConstraint(Sketcher.Constraint("DistanceX", 1, 1, 1, 2, 24.0))
sketch8.addConstraint(Sketcher.Constraint("DistanceY", 0, 2, 0, 1, 18.9))
sketch8.setExpression("Constraints[9]", "Params.sketch8_width")
sketch8.setExpression("Constraints[10]", "Params.sketch8_height")
pocket3 = body.newObject("PartDesign::Pocket", "Pocket002")
pocket3.Profile = sketch8
pocket3.setExpression("Length", "Params.pocket3_length")

# Sketch on XZ plane
sketch9 = body.newObject("Sketcher::SketchObject", "Sketch008")
sketch9.AttachmentSupport = (doc.getObject("XZ_Plane"), [""])
sketch9.MapMode = "FlatFace"
sketch9.addGeometry(Part.Circle(App.Vector(0, 13.87, 0), App.Vector(0, 0, 1), 12.5), False)
sketch9.addConstraint(Sketcher.Constraint("PointOnObject", 0, 3, -2))
sketch9.addConstraint(Sketcher.Constraint("Diameter", 0, 25.0))
sketch9.addConstraint(Sketcher.Constraint("DistanceY", -1, 1, 0, 3, 13.87))
sketch9.setExpression("Constraints[1]", "Params.sketch9_diameter")
pad6 = body.newObject("PartDesign::Pad", "Pad005")
pad6.Profile = sketch9
pad6.setExpression("Length", "Params.pad6_length")
pad6.Midplane = True

# Sketch on XZ plane
sketch10 = body.newObject("Sketcher::SketchObject", "Sketch009")
sketch10.AttachmentSupport = (doc.getObject("XZ_Plane"), [""])
sketch10.MapMode = "FlatFace"
sketch10.addGeometry(Part.Circle(App.Vector(-13, 58, 0), App.Vector(0, 0, 1), 40), False)
sketch10.addConstraint(Sketcher.Constraint("Diameter", 0, 80.0))
sketch10.addConstraint(Sketcher.Constraint("DistanceX", 0, 3, -1, 1, 13.0))
sketch10.addConstraint(Sketcher.Constraint("DistanceY", -1, 1, 0, 3, 58.0))
sketch10.setExpression("Constraints[0]", "Params.sketch10_diameter")
pocket4 = body.newObject("PartDesign::Pocket", "Pocket003")
pocket4.Profile = sketch10
pocket4.Type = "ThroughAll"
pocket4.Midplane = True
doc.recompute()

chamfer3 = body.newObject("PartDesign::Chamfer", "Chamfer002")
chamfer3.Base = (pocket4, edges_at(pocket4, [
    (-12, 0, 17.87),
    (0, 9.45, 17.87),
    (0, -9.45, 17.87),
    (12, 0, 17.87),
]))
chamfer3.setExpression("Size", "Params.chamfer3_size")

doc.recompute()
